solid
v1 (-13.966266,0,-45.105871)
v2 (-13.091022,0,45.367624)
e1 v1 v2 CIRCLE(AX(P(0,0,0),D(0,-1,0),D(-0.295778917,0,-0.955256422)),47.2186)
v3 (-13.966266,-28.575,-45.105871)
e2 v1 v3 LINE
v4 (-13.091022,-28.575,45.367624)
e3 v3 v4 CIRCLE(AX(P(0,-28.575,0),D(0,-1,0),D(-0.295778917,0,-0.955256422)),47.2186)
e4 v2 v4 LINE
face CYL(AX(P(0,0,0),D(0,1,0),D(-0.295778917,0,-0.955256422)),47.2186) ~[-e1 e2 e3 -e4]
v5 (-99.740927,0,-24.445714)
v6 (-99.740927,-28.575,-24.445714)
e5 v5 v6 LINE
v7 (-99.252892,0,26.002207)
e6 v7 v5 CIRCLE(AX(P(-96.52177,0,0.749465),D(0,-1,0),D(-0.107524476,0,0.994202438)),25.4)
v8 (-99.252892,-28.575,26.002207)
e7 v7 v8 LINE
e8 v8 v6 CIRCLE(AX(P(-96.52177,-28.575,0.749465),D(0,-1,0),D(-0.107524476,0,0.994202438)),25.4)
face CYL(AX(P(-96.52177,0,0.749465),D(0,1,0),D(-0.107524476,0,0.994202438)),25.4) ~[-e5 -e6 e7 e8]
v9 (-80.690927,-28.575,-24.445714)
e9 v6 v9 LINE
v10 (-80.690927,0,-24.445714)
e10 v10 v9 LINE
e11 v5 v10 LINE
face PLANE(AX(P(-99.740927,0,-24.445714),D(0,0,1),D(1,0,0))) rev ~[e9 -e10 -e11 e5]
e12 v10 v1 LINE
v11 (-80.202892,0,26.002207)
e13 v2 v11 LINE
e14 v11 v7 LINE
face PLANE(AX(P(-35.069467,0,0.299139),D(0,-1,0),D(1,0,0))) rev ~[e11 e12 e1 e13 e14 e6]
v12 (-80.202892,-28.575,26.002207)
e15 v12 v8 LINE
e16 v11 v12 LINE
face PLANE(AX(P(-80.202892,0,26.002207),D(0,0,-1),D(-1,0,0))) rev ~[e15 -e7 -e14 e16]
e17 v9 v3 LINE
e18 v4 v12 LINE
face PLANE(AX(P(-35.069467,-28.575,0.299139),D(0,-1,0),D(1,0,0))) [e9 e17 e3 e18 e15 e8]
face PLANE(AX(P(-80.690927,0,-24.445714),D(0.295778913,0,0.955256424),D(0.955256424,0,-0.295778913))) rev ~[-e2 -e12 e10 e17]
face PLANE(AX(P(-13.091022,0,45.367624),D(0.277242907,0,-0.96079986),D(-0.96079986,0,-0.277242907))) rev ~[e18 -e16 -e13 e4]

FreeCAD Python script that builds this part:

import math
import FreeCAD as App
import Part
import Sketcher
from FreeCAD import Vector
Q = App.Units.Quantity

doc = App.newDocument("Part")
body = doc.addObject("PartDesign::Body", "Body")

# Sketch on XZ plane
sketch1 = doc.addObject("Sketcher::SketchObject", "Sketch")
body.addObject(sketch1)
sketch1.AttachmentSupport = (doc.XZ_Plane, [""])
sketch1.MapMode = "FlatFace"
sketch1.addGeometry([
    Part.LineSegment(Vector(-80.690927, -24.445714, 0), Vector(-13.966266, -45.105871, 0)),  # 0
    Part.ArcOfCircle(Part.Circle(Vector(0, 0, 0), Vector(0, 0, 1), 47.2186), math.radians(-107.204251), math.radians(106.095722)),  # 1
    Part.LineSegment(Vector(-13.091022, 45.367624, 0), Vector(-80.202892, 26.002207, 0)),  # 2
    Part.LineSegment(Vector(-80.202892, 26.002207, 0), Vector(-99.252892, 26.002207, 0)),  # 3
    Part.ArcOfCircle(Part.Circle(Vector(-96.52177, 0.749465, 0), Vector(0, 0, 1), 25.4), math.radians(96.172632), math.radians(262.71884)),  # 4
    Part.LineSegment(Vector(-99.740927, -24.445714, 0), Vector(-80.690927, -24.445714, 0)),  # 5
], False)
sketch1.addConstraint([
    Sketcher.Constraint("Tangent", 0, 2, 1, 1),
    Sketcher.Constraint("Tangent", 1, 2, 2, 1),
    Sketcher.Constraint("Coincident", 2, 2, 3, 1),
    Sketcher.Constraint("Coincident", 3, 2, 4, 1),
    Sketcher.Constraint("Coincident", 4, 2, 5, 1),
    Sketcher.Constraint("Coincident", 5, 2, 0, 1),
    Sketcher.Constraint("Horizontal", 3),
    Sketcher.Constraint("Horizontal", 5),
    Sketcher.Constraint("Coincident", 1, 3, -1, 1),
    Sketcher.Constraint("Equal", 3, 5),
    Sketcher.Constraint("Equal", 0, 2),
    Sketcher.Constraint("Radius", 4, Q("1 in")),
    Sketcher.Constraint("Radius", 1, Q("1.859 in")),
    Sketcher.Constraint("DistanceX", 3, 2, 3, 1, Q("0.75 in")),
    Sketcher.Constraint("Distance", 0, Q("2.75 in")),
    Sketcher.Constraint("DistanceX", 4, 3, -1, 1, Q("96.52177 mm")),
    Sketcher.Constraint("DistanceY", 0, 2, -1, 1, Q("45.105871 mm")),
])
pad1 = doc.addObject("PartDesign::Pad", "Pad")
body.addObject(pad1)
pad1.Profile = sketch1
pad1.Length = Q("1.125 in")

doc.recompute()
